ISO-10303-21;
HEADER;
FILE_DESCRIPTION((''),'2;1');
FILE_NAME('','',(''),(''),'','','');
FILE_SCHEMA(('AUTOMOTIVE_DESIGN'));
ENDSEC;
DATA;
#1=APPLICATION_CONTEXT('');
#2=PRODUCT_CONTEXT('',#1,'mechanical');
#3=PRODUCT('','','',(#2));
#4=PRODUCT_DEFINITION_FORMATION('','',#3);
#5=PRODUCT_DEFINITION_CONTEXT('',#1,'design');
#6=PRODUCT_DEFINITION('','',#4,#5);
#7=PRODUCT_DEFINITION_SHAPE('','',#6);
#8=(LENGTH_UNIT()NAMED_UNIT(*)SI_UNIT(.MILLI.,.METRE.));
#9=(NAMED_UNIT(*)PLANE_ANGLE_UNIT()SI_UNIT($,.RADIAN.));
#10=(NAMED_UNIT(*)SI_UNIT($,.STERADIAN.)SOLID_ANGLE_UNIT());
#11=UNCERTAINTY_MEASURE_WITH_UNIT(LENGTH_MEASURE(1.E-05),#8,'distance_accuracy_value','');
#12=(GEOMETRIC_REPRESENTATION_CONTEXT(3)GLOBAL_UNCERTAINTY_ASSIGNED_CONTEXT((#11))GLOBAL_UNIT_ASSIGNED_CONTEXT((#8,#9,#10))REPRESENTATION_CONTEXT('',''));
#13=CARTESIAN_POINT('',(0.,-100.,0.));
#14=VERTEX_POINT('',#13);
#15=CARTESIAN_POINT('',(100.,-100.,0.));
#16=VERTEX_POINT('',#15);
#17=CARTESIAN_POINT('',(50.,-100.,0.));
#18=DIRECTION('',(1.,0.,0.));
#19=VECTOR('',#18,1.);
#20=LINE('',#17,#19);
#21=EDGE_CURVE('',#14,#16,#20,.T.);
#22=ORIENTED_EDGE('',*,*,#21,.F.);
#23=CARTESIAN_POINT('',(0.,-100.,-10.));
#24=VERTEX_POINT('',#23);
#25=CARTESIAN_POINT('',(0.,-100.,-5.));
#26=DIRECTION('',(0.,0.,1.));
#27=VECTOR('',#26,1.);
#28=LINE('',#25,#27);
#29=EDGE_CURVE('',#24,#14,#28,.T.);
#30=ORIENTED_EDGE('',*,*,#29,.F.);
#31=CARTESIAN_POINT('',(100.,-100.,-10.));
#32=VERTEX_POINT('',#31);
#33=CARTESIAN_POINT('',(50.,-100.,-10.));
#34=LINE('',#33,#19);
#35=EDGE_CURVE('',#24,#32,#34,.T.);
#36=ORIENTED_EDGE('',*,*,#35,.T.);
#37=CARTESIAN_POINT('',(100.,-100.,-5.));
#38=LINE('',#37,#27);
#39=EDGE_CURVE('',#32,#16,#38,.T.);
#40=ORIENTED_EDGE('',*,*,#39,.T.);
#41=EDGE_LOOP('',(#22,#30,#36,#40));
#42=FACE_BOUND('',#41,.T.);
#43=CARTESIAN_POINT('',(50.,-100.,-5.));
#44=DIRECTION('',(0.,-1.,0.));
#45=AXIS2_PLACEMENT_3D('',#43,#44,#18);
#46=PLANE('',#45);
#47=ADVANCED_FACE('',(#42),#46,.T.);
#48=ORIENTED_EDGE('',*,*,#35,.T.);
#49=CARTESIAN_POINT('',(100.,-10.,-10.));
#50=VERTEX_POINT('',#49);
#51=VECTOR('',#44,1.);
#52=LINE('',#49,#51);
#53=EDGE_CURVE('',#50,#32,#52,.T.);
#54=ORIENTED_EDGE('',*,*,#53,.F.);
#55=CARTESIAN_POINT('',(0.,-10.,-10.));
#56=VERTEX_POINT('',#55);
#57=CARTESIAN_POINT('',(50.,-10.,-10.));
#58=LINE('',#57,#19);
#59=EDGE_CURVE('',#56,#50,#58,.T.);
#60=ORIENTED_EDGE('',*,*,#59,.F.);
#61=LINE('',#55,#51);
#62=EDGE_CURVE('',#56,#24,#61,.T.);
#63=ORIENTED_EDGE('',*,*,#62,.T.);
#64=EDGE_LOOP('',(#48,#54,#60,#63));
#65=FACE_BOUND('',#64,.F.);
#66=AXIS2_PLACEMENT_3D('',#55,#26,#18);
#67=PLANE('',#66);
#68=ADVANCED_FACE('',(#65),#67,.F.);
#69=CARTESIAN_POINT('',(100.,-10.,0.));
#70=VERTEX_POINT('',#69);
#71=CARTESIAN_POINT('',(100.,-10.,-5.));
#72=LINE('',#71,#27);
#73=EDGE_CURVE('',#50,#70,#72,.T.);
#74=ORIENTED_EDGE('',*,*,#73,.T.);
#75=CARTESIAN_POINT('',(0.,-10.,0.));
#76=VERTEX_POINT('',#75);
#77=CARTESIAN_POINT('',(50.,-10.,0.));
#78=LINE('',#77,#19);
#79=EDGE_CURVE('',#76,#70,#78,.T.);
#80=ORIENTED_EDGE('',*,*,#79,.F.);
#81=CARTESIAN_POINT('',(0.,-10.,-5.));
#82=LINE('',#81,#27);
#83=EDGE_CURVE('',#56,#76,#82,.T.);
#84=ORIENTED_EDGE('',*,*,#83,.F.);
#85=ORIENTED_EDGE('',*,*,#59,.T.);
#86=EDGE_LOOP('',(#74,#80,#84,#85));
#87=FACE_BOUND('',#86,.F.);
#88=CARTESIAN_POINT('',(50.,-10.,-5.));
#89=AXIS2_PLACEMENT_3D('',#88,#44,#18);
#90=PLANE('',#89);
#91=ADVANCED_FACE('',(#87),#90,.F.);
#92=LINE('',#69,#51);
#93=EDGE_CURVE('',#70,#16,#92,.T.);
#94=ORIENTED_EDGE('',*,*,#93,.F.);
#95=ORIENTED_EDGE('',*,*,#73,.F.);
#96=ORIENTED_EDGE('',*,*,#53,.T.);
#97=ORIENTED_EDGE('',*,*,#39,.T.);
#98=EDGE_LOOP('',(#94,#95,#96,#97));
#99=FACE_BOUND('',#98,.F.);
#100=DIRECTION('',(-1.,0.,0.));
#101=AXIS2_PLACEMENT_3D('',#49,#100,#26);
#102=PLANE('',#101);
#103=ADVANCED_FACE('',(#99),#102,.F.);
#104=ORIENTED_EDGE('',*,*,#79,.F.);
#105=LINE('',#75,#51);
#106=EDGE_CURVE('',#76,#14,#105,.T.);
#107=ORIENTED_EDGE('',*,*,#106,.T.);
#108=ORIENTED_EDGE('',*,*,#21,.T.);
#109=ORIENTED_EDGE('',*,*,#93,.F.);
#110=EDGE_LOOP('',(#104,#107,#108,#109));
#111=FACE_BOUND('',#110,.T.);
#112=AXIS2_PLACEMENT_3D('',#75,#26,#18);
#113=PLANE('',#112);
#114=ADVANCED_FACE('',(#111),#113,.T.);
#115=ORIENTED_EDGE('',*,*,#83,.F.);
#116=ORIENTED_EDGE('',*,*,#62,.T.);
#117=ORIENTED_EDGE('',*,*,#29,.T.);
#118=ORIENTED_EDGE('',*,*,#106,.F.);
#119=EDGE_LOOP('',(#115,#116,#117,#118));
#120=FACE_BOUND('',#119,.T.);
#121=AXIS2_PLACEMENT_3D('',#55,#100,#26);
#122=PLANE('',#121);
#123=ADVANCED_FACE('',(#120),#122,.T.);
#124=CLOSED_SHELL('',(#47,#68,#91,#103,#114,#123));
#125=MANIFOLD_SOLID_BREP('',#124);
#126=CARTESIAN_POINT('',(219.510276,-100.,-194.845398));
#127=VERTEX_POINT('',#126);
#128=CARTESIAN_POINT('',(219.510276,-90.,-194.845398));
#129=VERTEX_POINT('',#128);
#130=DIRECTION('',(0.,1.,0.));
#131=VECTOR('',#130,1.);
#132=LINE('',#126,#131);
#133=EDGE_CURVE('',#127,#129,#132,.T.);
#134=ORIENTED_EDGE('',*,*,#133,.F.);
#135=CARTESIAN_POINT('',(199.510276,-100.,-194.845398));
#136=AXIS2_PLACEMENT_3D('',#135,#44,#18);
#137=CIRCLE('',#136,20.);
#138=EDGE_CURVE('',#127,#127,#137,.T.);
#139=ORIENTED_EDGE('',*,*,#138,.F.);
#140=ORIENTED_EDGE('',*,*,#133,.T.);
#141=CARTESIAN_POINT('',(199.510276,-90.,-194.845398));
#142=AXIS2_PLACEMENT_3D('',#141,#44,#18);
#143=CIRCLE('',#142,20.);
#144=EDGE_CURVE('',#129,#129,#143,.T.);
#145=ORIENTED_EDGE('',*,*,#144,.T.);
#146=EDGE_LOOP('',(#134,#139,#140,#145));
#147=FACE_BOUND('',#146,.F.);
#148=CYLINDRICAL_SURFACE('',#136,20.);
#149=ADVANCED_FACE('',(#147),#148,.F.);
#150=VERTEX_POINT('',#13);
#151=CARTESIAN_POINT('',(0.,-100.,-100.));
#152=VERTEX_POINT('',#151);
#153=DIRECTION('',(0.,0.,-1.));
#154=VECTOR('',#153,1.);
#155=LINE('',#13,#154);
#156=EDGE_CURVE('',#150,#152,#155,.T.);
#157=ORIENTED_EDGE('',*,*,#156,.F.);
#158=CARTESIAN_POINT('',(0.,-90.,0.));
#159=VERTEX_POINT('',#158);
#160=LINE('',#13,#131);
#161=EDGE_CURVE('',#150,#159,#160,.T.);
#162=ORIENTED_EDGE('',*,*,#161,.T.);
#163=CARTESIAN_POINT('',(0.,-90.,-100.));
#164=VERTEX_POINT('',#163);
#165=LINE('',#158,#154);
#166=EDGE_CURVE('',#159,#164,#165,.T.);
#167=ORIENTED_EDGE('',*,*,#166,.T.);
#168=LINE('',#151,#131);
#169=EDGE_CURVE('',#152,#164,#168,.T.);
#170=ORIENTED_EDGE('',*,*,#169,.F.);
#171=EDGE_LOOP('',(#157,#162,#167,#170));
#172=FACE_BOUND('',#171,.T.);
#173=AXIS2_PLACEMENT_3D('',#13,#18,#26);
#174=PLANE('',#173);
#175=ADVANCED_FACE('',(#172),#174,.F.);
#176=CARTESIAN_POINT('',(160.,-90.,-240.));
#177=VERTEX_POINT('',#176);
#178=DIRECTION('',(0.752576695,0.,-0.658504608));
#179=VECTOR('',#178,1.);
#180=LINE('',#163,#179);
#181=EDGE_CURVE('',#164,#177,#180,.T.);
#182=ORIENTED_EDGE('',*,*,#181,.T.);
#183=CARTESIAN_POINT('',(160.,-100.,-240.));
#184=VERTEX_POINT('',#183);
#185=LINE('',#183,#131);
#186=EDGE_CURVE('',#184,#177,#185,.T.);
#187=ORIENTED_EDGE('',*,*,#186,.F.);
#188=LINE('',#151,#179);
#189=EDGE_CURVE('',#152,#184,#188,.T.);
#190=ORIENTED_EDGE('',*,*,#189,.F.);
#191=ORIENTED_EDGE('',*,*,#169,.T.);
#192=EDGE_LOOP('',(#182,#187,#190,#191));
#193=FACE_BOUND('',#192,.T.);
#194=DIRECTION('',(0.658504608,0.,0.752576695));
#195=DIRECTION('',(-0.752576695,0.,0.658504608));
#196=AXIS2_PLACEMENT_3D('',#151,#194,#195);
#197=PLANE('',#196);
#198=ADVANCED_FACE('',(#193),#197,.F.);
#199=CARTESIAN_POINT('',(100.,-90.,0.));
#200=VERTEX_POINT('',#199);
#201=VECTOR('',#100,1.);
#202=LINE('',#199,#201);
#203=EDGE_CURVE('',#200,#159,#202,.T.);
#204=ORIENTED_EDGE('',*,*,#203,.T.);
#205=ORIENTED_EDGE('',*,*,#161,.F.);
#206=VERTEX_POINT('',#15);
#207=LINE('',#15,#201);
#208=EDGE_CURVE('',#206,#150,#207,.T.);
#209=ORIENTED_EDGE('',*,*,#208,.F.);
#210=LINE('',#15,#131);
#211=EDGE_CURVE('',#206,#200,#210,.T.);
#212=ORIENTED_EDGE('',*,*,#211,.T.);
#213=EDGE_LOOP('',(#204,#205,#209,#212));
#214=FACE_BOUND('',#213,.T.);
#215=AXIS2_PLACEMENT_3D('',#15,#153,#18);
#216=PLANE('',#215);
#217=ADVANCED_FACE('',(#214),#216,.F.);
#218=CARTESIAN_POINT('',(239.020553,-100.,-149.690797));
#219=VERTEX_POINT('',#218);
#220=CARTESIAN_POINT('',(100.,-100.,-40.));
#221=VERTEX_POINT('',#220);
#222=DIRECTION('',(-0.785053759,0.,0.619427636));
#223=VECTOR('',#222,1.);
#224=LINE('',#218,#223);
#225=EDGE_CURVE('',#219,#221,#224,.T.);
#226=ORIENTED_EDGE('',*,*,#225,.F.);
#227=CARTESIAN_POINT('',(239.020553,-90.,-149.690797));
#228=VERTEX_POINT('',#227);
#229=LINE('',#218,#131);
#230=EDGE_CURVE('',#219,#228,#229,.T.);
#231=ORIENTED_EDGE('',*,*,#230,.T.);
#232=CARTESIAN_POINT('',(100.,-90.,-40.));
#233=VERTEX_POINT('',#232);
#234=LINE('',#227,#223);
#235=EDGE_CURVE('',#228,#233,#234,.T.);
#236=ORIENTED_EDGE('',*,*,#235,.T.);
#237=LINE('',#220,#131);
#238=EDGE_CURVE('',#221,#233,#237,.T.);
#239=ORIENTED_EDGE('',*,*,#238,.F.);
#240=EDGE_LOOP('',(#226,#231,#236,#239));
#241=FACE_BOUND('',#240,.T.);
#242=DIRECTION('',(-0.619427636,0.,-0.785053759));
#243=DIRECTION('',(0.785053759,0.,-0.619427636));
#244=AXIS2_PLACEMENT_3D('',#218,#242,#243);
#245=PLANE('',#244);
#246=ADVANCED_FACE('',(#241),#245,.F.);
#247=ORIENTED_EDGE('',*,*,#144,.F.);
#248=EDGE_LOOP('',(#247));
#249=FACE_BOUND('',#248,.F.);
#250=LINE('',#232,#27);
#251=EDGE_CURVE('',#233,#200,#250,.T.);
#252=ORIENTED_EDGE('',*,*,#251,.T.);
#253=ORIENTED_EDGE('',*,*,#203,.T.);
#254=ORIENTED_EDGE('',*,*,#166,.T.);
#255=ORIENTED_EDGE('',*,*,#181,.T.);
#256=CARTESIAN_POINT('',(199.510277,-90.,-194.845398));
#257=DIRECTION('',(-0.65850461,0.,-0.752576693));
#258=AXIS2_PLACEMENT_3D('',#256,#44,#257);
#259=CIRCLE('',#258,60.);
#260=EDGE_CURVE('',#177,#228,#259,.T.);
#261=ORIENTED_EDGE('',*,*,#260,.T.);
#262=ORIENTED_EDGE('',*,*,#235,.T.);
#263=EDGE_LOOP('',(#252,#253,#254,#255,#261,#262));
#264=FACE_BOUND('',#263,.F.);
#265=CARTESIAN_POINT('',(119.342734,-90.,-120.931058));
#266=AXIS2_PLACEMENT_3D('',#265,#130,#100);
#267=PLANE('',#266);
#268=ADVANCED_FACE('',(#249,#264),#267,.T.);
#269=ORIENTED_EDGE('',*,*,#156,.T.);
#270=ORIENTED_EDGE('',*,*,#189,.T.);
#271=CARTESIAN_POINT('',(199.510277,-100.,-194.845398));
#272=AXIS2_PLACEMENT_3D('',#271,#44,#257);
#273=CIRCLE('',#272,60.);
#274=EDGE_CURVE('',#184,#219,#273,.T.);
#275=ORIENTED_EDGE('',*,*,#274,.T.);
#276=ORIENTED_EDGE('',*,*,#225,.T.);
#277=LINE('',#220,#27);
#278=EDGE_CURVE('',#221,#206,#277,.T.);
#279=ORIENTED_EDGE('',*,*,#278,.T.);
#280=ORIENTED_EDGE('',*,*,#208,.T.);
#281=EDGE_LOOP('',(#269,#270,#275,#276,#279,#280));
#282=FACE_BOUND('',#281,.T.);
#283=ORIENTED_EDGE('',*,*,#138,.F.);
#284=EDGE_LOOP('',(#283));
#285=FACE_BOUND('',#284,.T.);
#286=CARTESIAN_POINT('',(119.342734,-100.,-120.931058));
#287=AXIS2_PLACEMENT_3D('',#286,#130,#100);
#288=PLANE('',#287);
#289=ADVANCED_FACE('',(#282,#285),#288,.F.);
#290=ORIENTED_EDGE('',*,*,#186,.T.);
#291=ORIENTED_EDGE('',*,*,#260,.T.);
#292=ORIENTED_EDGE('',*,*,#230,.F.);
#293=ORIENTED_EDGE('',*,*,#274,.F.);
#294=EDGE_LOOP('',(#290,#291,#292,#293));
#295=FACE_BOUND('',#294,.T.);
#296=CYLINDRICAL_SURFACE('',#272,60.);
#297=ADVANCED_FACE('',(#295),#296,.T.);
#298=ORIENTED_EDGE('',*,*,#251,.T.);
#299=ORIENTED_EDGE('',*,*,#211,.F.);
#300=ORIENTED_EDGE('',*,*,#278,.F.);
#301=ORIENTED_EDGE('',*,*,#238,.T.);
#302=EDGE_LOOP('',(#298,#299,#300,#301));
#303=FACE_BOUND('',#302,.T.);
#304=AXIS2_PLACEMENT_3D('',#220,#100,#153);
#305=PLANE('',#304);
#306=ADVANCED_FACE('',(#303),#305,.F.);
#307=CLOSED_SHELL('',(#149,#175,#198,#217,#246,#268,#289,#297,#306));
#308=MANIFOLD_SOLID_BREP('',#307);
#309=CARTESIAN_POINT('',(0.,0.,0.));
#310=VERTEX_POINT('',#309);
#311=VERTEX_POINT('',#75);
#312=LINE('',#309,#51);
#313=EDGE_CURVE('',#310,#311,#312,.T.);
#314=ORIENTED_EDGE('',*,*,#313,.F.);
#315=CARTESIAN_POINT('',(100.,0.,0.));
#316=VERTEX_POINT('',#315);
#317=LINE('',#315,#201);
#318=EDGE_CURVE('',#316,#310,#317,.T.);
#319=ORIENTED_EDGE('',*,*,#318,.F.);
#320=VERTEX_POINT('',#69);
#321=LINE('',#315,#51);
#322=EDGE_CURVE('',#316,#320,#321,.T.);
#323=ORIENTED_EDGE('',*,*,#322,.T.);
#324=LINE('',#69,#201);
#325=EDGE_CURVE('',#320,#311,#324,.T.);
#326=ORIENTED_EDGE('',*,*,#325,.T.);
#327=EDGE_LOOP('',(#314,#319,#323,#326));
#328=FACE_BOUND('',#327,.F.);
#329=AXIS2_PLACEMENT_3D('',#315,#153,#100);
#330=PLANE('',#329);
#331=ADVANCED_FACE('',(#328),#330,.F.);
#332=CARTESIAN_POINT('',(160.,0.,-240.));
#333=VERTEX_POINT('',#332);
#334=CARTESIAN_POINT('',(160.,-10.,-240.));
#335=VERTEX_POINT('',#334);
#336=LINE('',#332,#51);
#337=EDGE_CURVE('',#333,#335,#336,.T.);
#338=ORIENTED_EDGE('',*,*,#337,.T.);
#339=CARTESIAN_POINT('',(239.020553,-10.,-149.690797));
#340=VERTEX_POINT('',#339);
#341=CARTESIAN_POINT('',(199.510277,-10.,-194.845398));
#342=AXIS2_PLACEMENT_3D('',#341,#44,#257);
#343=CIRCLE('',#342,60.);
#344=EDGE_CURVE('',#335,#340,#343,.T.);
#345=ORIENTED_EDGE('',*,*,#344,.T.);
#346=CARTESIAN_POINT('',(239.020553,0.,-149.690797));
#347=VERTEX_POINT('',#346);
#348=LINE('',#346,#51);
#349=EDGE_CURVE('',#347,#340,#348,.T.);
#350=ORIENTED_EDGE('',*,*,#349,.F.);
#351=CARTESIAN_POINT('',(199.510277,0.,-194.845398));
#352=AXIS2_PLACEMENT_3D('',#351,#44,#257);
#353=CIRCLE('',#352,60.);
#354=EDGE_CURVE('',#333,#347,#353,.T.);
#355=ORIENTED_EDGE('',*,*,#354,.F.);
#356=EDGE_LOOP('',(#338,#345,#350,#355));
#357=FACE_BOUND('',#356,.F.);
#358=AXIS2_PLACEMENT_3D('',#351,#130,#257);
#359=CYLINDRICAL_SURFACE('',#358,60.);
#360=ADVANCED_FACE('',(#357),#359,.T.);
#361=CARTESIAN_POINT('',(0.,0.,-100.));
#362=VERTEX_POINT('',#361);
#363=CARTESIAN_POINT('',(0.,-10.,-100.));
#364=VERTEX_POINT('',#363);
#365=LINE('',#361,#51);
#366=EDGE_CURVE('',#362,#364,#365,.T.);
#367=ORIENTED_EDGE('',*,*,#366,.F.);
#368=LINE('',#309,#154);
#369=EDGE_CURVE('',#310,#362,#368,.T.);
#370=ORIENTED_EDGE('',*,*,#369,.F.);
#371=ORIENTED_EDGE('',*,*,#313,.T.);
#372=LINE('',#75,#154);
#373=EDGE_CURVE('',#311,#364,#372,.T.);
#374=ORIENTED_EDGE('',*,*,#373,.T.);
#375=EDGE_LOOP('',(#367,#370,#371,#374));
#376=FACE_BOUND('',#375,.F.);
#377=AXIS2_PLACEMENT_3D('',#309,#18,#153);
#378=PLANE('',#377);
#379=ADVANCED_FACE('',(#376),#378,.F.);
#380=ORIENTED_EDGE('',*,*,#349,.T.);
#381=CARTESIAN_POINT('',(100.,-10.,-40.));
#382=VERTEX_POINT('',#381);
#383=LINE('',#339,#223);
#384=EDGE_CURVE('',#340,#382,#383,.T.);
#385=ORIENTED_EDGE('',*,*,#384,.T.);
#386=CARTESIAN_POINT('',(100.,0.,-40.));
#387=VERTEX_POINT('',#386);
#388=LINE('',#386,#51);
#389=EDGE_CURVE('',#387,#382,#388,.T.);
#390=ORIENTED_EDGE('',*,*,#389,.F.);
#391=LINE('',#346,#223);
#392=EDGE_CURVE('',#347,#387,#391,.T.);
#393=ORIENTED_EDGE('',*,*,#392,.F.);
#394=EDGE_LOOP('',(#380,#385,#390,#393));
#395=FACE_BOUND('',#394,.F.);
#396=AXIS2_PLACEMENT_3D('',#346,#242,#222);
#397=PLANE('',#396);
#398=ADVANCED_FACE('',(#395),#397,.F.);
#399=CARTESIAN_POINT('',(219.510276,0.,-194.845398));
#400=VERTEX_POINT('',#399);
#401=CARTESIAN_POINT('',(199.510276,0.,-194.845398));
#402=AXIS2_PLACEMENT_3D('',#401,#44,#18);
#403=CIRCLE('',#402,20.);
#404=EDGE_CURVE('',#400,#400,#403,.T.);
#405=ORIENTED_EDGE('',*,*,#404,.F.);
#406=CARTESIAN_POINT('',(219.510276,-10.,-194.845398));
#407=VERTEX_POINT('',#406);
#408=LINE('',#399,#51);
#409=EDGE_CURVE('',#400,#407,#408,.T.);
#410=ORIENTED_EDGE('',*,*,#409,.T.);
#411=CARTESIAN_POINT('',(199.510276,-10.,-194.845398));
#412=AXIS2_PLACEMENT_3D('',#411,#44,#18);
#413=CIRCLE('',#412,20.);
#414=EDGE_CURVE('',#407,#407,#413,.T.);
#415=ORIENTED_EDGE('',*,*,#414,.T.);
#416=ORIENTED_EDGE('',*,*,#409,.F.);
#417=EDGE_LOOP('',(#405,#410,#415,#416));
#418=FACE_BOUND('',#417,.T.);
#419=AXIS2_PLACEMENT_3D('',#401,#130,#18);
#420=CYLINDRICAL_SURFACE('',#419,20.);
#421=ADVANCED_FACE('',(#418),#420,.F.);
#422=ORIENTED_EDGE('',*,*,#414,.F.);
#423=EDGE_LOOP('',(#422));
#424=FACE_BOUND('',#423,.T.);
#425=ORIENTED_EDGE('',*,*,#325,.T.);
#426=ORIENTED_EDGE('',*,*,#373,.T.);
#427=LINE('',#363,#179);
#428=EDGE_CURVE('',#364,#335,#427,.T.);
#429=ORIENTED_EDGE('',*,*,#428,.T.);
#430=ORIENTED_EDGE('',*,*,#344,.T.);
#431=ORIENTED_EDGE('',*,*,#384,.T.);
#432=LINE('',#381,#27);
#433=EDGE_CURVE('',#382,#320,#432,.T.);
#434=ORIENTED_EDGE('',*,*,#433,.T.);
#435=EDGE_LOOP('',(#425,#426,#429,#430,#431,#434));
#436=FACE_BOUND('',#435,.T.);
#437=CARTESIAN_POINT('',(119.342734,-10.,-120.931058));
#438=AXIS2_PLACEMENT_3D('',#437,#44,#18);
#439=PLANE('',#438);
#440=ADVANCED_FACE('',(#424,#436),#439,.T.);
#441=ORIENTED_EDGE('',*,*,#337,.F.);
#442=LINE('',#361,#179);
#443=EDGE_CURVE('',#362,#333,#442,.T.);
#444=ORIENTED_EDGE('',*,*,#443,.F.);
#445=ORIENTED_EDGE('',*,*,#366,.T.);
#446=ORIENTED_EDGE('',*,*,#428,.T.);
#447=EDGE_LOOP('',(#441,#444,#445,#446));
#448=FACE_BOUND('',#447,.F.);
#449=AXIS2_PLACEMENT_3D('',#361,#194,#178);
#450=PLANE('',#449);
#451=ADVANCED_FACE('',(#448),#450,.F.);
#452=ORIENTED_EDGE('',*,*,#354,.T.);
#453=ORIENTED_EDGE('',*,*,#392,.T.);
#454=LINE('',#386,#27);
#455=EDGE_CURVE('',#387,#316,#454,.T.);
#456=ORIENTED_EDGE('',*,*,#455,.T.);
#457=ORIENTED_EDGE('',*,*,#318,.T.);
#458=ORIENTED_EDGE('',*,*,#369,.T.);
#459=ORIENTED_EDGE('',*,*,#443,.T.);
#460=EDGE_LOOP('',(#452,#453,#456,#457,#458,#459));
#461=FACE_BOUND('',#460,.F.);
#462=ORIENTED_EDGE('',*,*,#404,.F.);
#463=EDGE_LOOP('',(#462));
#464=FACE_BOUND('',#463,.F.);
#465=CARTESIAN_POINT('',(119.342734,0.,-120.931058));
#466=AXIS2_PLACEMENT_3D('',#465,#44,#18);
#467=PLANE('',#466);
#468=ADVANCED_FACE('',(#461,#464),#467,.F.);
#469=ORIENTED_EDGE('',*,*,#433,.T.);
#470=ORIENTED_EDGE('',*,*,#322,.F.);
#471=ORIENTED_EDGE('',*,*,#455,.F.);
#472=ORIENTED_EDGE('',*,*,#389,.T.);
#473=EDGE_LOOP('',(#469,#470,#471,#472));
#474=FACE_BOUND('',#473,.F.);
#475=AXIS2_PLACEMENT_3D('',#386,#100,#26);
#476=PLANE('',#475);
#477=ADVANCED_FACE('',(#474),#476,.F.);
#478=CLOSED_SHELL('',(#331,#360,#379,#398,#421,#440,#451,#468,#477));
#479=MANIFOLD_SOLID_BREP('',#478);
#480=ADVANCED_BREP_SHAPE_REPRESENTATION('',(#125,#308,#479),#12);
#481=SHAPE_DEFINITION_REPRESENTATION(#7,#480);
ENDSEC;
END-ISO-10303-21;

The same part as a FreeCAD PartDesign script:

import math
import FreeCAD as App
import Part
import Sketcher

V = App.Vector
Q = App.Units.Quantity


def add_polygon(sketch, points):
    """Adds a closed chain of lines whose ends are joined by coincident constraints."""
    first, n = sketch.GeometryCount, len(points)
    for a, b in zip(points, points[1:] + points[:1]):
        sketch.addGeometry(Part.LineSegment(App.Vector(*a, 0), App.Vector(*b, 0)), False)
    for i in range(n):
        sketch.addConstraint(Sketcher.Constraint("Coincident", first + i, 2, first + (i + 1) % n, 1))

doc = App.newDocument("Part")
body = doc.addObject("PartDesign::Body", "Body")

# Sketch on XZ plane
sketch1 = doc.addObject("Sketcher::SketchObject", "Sketch")
body.addObject(sketch1)
sketch1.AttachmentSupport = (doc.XZ_Plane, [""])
sketch1.MapMode = "FlatFace"
sketch1.addGeometry([
    Part.LineSegment(V(0, 0, 0), V(0, -100, 0)),  # 0
    Part.LineSegment(V(0, -100, 0), V(160, -240, 0)),  # 1
    Part.ArcOfCircle(Part.Circle(V(200, -195, 0), V(0, 0, 1), 60), math.radians(-131), math.radians(49)),  # 2
    Part.LineSegment(V(239, -150, 0), V(100, -40, 0)),  # 3
    Part.LineSegment(V(100, -40, 0), V(100, 0, 0)),  # 4
    Part.LineSegment(V(100, 0, 0), V(0, 0, 0)),  # 5
    Part.Circle(V(200, -195, 0), V(0, 0, 1), 20),  # 6
], False)
sketch1.addConstraint([
    Sketcher.Constraint("Coincident", 0, 2, 1, 1),
    Sketcher.Constraint("Tangent", 1, 2, 2, 1),
    Sketcher.Constraint("Coincident", 2, 2, 3, 1),
    Sketcher.Constraint("Coincident", 3, 2, 4, 1),
    Sketcher.Constraint("Coincident", 4, 2, 5, 1),
    Sketcher.Constraint("Coincident", 5, 2, 0, 1),
    Sketcher.Constraint("Vertical", 0),
    Sketcher.Constraint("Vertical", 4),
    Sketcher.Constraint("Horizontal", 5),
    Sketcher.Constraint("Coincident", 5, 2, -1, 1),
    Sketcher.Constraint("Coincident", 6, 3, 2, 3),
    Sketcher.Constraint("Equal", 5, 0),
    Sketcher.Constraint("Diameter", 6, Q("40 mm")),
    Sketcher.Constraint("Radius", 2, Q("60 mm")),
    Sketcher.Constraint("DistanceX", 5, 2, 5, 1, Q("100 mm")),
    Sketcher.Constraint("DistanceY", 4, 1, 4, 2, Q("40 mm")),
    Sketcher.Constraint("DistanceX", -1, 1, 1, 2, Q("160 mm")),
    Sketcher.Constraint("DistanceY", 1, 2, -1, 1, Q("240 mm")),
    Sketcher.Constraint("DistanceY", 6, 3, 2, 2, Q("45.154601 mm")),
])
pad1 = doc.addObject("PartDesign::Pad", "Pad")
body.addObject(pad1)
pad1.Profile = sketch1
pad1.Length = 10
body2 = doc.addObject("PartDesign::Body", "Body001")
doc.recompute()

mirroring = doc.addObject("Part::Mirroring", "Mirroring")
mirroring.Source = body
mirroring.Base = V(120.487236, -50, -125.003988)
mirroring.Normal = V(0, -1, 0)
body2.BaseFeature = mirroring
doc.recompute()
body3 = doc.addObject("PartDesign::Body", "Body002")

# Sketch on XZ plane
sketch2 = doc.addObject("Sketcher::SketchObject", "Sketch001")
body3.addObject(sketch2)
sketch2.AttachmentSupport = (doc.getObject("XZ_Plane002"), [""])
sketch2.MapMode = "FlatFace"
sketch2.AttachmentOffset = App.Placement(V(0, 0, 10), App.Rotation())
add_polygon(sketch2, [(0, 0), (0, -10), (100, -10), (100, 0)])  # lines 0-3
sketch2.addConstraint([
    Sketcher.Constraint("Vertical", 0),
    Sketcher.Constraint("Horizontal", 1),
    Sketcher.Constraint("Vertical", 2),
    Sketcher.Constraint("Horizontal", 3),
    Sketcher.Constraint("Coincident", 3, 2, -1, 1),
    Sketcher.Constraint("DistanceX", 1, 1, 1, 2, Q("100 mm")),
    Sketcher.Constraint("DistanceY", 0, 2, 0, 1, Q("10 mm")),
])
pad2 = doc.addObject("PartDesign::Pad", "Pad001")
body3.addObject(pad2)
pad2.Profile = sketch2
pad2.Length = 90
mirroring.Visibility = False

doc.recompute()
